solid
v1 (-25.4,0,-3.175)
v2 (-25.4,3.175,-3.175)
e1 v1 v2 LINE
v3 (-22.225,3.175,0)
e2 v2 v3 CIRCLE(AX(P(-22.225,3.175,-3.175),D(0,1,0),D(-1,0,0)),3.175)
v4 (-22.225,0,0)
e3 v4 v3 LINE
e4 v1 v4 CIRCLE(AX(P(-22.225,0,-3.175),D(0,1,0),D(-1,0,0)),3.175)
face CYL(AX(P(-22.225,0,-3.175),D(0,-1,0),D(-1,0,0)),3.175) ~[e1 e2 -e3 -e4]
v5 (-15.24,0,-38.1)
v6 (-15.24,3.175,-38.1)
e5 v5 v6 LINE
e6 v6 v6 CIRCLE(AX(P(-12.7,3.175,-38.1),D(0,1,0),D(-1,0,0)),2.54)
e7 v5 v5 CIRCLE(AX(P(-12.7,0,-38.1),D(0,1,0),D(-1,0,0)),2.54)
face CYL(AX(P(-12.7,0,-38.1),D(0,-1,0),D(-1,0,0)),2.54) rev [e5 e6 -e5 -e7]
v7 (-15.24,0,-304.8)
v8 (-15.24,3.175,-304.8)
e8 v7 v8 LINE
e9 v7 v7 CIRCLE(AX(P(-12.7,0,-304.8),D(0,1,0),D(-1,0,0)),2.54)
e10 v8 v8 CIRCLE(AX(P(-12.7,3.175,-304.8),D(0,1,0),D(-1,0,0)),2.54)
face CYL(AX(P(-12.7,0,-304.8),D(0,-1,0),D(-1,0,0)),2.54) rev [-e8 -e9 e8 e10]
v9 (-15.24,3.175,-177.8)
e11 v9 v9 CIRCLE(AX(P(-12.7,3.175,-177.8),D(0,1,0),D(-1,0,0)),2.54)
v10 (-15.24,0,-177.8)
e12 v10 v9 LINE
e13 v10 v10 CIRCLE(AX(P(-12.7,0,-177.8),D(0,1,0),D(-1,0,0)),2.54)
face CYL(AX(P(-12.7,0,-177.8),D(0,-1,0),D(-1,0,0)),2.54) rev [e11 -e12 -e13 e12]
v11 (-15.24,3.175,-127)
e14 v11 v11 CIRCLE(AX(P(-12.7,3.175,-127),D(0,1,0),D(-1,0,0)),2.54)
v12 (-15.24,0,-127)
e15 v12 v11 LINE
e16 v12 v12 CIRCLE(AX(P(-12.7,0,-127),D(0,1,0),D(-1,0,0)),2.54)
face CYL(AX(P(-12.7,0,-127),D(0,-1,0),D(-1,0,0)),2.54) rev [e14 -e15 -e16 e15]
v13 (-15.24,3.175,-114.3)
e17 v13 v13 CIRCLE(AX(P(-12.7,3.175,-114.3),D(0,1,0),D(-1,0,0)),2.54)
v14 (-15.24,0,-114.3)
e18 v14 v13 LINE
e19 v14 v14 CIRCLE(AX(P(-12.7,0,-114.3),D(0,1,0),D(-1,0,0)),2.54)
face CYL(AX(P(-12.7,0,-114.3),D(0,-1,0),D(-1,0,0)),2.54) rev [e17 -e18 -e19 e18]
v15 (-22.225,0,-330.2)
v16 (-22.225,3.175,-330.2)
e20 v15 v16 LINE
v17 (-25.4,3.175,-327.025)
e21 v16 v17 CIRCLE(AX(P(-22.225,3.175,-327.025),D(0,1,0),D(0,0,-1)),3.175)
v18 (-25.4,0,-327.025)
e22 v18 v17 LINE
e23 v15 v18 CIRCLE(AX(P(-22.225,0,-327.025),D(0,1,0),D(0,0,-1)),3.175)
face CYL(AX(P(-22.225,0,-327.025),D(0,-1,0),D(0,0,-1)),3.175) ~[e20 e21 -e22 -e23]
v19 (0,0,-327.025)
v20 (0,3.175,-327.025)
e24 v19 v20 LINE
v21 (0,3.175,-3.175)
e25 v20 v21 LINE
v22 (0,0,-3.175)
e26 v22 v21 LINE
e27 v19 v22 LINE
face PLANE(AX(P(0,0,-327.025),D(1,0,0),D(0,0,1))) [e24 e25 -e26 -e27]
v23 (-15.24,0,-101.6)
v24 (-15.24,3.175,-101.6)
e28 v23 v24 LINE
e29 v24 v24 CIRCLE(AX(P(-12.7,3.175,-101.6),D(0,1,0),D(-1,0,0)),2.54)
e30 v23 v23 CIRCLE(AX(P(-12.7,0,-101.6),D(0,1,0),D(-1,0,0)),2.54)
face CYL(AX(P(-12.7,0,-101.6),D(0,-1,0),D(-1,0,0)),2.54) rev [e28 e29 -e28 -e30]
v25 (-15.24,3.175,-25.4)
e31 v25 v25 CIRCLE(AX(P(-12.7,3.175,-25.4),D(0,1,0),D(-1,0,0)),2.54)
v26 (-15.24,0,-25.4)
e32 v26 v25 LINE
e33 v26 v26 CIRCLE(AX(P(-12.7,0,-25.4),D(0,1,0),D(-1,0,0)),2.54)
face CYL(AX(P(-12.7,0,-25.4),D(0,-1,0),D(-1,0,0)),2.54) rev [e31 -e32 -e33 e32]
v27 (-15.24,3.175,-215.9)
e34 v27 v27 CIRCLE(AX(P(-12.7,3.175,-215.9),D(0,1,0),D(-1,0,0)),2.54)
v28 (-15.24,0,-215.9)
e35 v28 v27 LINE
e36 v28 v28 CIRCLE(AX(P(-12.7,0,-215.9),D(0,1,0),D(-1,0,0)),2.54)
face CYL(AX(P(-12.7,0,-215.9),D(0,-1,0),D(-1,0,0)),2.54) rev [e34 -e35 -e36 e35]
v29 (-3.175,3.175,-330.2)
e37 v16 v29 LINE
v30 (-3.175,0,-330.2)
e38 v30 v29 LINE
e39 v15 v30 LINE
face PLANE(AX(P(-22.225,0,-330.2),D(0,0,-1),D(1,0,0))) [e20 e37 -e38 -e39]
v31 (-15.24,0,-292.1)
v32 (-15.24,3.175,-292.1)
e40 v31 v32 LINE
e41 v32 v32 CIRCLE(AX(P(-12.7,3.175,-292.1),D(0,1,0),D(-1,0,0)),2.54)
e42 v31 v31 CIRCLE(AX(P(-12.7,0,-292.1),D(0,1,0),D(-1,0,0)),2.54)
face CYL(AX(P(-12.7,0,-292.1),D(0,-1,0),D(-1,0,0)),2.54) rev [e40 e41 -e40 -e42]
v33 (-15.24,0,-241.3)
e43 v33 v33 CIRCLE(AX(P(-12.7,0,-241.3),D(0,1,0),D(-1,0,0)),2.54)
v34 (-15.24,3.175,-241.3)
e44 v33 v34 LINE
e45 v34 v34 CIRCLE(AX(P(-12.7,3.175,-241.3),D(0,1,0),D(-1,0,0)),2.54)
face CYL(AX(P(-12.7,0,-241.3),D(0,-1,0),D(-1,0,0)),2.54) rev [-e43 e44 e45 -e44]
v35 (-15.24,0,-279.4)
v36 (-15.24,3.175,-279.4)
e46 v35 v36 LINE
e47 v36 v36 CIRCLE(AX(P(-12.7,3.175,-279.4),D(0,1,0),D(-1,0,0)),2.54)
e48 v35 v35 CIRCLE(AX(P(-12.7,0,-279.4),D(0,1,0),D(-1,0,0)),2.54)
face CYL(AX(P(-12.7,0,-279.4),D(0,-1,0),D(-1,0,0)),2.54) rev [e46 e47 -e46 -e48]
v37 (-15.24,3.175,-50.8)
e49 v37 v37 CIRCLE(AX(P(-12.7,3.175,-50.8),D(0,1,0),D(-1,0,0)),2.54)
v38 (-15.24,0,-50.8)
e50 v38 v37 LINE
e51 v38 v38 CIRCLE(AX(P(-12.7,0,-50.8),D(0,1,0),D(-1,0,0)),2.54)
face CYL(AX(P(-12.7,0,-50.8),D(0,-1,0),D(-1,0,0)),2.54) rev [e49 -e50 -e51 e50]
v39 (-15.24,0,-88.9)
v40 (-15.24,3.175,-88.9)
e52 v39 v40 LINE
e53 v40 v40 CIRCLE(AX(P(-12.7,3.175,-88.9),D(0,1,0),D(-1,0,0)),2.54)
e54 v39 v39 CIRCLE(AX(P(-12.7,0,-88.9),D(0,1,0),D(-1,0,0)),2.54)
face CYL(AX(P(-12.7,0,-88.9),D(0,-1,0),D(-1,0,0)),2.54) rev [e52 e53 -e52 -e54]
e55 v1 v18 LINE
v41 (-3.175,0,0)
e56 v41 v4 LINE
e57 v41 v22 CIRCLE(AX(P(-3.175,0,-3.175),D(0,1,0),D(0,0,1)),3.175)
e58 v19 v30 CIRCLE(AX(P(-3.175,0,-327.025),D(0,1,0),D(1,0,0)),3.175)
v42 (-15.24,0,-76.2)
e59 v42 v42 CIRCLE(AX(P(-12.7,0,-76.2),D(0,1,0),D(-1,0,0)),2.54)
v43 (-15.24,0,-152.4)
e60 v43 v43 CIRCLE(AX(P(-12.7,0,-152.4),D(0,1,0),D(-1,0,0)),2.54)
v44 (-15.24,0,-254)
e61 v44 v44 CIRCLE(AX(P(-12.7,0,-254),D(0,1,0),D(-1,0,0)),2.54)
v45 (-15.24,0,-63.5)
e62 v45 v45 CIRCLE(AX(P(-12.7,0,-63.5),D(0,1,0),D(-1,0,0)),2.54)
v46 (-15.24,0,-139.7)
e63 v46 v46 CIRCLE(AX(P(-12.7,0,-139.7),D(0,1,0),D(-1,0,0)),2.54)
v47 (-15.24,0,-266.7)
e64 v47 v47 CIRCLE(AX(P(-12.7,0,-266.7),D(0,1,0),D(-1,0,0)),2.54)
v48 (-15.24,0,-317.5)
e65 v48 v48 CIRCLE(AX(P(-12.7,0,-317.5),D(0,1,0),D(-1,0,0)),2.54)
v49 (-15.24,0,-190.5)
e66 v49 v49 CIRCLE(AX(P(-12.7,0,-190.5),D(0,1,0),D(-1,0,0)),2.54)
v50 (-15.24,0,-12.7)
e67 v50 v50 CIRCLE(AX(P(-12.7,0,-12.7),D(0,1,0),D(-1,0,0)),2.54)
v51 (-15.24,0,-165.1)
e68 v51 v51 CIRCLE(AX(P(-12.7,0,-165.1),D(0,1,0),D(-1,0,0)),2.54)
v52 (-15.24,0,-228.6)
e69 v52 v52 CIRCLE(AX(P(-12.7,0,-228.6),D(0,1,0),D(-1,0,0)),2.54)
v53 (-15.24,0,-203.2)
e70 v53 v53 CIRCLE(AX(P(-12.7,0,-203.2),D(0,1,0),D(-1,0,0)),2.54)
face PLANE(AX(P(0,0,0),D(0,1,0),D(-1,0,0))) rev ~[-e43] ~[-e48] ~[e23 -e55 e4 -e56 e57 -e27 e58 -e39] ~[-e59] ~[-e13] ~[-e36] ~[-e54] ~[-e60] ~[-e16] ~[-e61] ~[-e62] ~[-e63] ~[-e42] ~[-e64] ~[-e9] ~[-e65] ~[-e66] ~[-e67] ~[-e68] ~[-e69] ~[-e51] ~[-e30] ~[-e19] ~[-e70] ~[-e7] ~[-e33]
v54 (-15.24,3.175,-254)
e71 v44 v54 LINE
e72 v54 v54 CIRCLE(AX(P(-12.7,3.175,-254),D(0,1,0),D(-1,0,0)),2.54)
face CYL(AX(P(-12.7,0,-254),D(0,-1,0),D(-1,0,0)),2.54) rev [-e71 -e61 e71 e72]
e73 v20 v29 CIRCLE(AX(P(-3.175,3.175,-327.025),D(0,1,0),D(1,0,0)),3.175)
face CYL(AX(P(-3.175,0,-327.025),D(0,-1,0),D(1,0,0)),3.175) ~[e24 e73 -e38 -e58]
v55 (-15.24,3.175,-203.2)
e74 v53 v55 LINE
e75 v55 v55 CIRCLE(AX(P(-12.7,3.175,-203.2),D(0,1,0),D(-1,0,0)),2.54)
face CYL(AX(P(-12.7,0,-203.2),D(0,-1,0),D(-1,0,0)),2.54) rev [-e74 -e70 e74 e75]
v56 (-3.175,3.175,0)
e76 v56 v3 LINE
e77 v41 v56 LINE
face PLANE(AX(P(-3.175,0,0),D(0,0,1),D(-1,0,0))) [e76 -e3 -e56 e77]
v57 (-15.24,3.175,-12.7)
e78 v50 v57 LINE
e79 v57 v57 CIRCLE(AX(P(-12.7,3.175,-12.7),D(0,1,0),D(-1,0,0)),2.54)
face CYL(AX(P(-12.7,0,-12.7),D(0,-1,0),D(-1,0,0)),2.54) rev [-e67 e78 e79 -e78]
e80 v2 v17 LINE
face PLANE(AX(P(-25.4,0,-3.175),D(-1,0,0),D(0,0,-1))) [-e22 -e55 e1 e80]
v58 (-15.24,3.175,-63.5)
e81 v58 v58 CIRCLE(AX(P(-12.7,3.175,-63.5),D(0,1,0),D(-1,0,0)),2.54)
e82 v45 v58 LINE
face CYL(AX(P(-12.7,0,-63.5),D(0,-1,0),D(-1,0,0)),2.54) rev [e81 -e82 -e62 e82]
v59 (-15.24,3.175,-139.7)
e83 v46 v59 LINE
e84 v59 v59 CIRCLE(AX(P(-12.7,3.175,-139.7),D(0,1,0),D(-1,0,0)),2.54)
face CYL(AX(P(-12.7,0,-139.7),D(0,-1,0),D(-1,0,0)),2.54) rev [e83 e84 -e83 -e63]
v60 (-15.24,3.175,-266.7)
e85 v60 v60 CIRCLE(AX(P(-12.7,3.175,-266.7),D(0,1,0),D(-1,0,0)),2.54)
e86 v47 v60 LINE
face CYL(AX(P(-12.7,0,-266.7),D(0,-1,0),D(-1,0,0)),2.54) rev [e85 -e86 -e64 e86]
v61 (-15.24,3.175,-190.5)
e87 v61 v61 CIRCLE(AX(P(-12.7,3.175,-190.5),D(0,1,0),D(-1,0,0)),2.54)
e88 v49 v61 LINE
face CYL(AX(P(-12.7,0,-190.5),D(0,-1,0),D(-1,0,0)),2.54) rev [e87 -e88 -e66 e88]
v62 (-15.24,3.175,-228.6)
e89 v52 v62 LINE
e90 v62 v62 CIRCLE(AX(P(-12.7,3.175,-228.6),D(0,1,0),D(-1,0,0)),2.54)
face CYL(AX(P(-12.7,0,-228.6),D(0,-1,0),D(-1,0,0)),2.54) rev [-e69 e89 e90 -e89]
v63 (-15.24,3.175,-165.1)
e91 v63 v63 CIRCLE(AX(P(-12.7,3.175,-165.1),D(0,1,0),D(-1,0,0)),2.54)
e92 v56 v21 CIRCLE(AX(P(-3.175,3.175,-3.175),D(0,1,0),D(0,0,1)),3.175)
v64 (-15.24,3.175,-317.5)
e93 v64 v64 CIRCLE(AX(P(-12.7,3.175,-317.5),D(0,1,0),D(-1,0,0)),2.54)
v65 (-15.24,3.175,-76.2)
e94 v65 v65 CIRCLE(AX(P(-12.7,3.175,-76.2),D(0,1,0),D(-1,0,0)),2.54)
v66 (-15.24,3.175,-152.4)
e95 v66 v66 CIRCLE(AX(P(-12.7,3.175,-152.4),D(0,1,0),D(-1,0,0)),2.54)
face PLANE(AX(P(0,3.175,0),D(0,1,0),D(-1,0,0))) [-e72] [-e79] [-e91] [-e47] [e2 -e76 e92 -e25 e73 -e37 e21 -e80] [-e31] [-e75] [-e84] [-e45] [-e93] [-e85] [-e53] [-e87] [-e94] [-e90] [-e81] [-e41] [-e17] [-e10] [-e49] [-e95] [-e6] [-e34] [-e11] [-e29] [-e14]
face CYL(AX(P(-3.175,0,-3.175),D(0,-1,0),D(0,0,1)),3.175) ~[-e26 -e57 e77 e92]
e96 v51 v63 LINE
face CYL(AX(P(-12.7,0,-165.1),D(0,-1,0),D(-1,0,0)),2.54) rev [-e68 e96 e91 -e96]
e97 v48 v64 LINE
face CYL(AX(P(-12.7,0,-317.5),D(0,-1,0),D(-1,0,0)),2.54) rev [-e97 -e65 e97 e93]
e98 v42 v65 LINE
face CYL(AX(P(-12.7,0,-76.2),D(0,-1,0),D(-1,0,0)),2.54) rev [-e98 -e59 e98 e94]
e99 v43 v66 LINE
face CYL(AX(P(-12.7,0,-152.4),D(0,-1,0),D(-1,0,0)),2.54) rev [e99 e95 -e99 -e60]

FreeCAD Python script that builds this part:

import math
import FreeCAD as App
import Part
import Sketcher
Q = App.Units.Quantity

doc = App.newDocument("Part")
body = doc.addObject("PartDesign::Body", "Body")

# Sketch on XZ plane
sketch1 = body.newObject("Sketcher::SketchObject", "Sketch")
sketch1.AttachmentSupport = (doc.getObject("XZ_Plane"), [""])
sketch1.MapMode = "FlatFace"
sketch1.addGeometry([
    Part.LineSegment(App.Vector(-22.2, 0, 0), App.Vector(-3.2, 0, 0)),  # 0
    Part.ArcOfCircle(Part.Circle(App.Vector(-3.2, -3.2, 0), App.Vector(0, 0, 1), 3.2), math.radians(0), math.radians(90)),  # 1
    Part.LineSegment(App.Vector(0, -3.2, 0), App.Vector(0, -327, 0)),  # 2
    Part.ArcOfCircle(Part.Circle(App.Vector(-3.2, -327, 0), App.Vector(0, 0, 1), 3.2), math.radians(-90), math.radians(0)),  # 3
    Part.LineSegment(App.Vector(-3.2, -330.2, 0), App.Vector(-22.2, -330.2, 0)),  # 4
    Part.ArcOfCircle(Part.Circle(App.Vector(-22.2, -327, 0), App.Vector(0, 0, 1), 3.2), math.radians(180), math.radians(270)),  # 5
    Part.LineSegment(App.Vector(-25.4, -327, 0), App.Vector(-25.4, -3.2, 0)),  # 6
    Part.ArcOfCircle(Part.Circle(App.Vector(-22.2, -3.2, 0), App.Vector(0, 0, 1), 3.2), math.radians(90), math.radians(180)),  # 7
    Part.Circle(App.Vector(-12.7, -317.5, 0), App.Vector(0, 0, 1), 2.5),  # 8
    Part.Circle(App.Vector(-12.7, -304.8, 0), App.Vector(0, 0, 1), 2.5),  # 9
    Part.Circle(App.Vector(-12.7, -292.1, 0), App.Vector(0, 0, 1), 2.5),  # 10
    Part.Circle(App.Vector(-12.7, -279.4, 0), App.Vector(0, 0, 1), 2.5),  # 11
    Part.Circle(App.Vector(-12.7, -266.7, 0), App.Vector(0, 0, 1), 2.5),  # 12
    Part.Circle(App.Vector(-12.7, -254, 0), App.Vector(0, 0, 1), 2.5),  # 13
    Part.Circle(App.Vector(-12.7, -241.3, 0), App.Vector(0, 0, 1), 2.5),  # 14
    Part.Circle(App.Vector(-12.7, -228.6, 0), App.Vector(0, 0, 1), 2.5),  # 15
    Part.Circle(App.Vector(-12.7, -215.9, 0), App.Vector(0, 0, 1), 2.5),  # 16
    Part.Circle(App.Vector(-12.7, -203.2, 0), App.Vector(0, 0, 1), 2.5),  # 17
    Part.Circle(App.Vector(-12.7, -190.5, 0), App.Vector(0, 0, 1), 2.5),  # 18
    Part.Circle(App.Vector(-12.7, -177.8, 0), App.Vector(0, 0, 1), 2.5),  # 19
    Part.Circle(App.Vector(-12.7, -165.1, 0), App.Vector(0, 0, 1), 2.5),  # 20
    Part.Circle(App.Vector(-12.7, -152.4, 0), App.Vector(0, 0, 1), 2.5),  # 21
    Part.Circle(App.Vector(-12.7, -139.7, 0), App.Vector(0, 0, 1), 2.5),  # 22
    Part.Circle(App.Vector(-12.7, -127, 0), App.Vector(0, 0, 1), 2.5),  # 23
    Part.Circle(App.Vector(-12.7, -114.3, 0), App.Vector(0, 0, 1), 2.5),  # 24
    Part.Circle(App.Vector(-12.7, -101.6, 0), App.Vector(0, 0, 1), 2.5),  # 25
    Part.Circle(App.Vector(-12.7, -88.9, 0), App.Vector(0, 0, 1), 2.5),  # 26
    Part.Circle(App.Vector(-12.7, -76.2, 0), App.Vector(0, 0, 1), 2.5),  # 27
    Part.Circle(App.Vector(-12.7, -63.5, 0), App.Vector(0, 0, 1), 2.5),  # 28
    Part.Circle(App.Vector(-12.7, -50.8, 0), App.Vector(0, 0, 1), 2.5),  # 29
    Part.Circle(App.Vector(-12.7, -38.1, 0), App.Vector(0, 0, 1), 2.5),  # 30
    Part.Circle(App.Vector(-12.7, -25.4, 0), App.Vector(0, 0, 1), 2.5),  # 31
    Part.Circle(App.Vector(-12.7, -12.7, 0), App.Vector(0, 0, 1), 2.5),  # 32
], False)
sketch1.addConstraint([
    Sketcher.Constraint("Tangent", 0, 2, 1, 2),
    Sketcher.Constraint("Tangent", 1, 1, 2, 1),
    Sketcher.Constraint("Tangent", 2, 2, 3, 2),
    Sketcher.Constraint("Tangent", 3, 1, 4, 1),
    Sketcher.Constraint("Tangent", 4, 2, 5, 2),
    Sketcher.Constraint("Tangent", 5, 1, 6, 1),
    Sketcher.Constraint("Tangent", 6, 2, 7, 2),
    Sketcher.Constraint("Tangent", 7, 1, 0, 1),
    Sketcher.Constraint("Horizontal", 0),
    Sketcher.Constraint("Vertical", 2),
    Sketcher.Constraint("Horizontal", 4),
    Sketcher.Constraint("Vertical", 6),
    Sketcher.Constraint("Equal", 1, 3),
    Sketcher.Constraint("Equal", 3, 5),
    Sketcher.Constraint("Equal", 5, 7),
    Sketcher.Constraint("Equal", 8, 9),
    Sketcher.Constraint("Equal", 9, 10),
    Sketcher.Constraint("Equal", 10, 11),
    Sketcher.Constraint("Equal", 11, 12),
    Sketcher.Constraint("Equal", 12, 13),
    Sketcher.Constraint("Equal", 13, 14),
    Sketcher.Constraint("Equal", 14, 15),
    Sketcher.Constraint("Equal", 15, 16),
    Sketcher.Constraint("Equal", 16, 17),
    Sketcher.Constraint("Equal", 17, 18),
    Sketcher.Constraint("Equal", 18, 19),
    Sketcher.Constraint("Equal", 19, 20),
    Sketcher.Constraint("Equal", 20, 21),
    Sketcher.Constraint("Equal", 21, 22),
    Sketcher.Constraint("Equal", 22, 23),
    Sketcher.Constraint("Equal", 23, 24),
    Sketcher.Constraint("Equal", 24, 25),
    Sketcher.Constraint("Equal", 25, 26),
    Sketcher.Constraint("Equal", 26, 27),
    Sketcher.Constraint("Equal", 27, 28),
    Sketcher.Constraint("Equal", 28, 29),
    Sketcher.Constraint("Equal", 29, 30),
    Sketcher.Constraint("Equal", 30, 31),
    Sketcher.Constraint("Equal", 31, 32),
    Sketcher.Constraint("PointOnObject", 0, 2, -1),
    Sketcher.Constraint("PointOnObject", 1, 1, -2),
    Sketcher.Constraint("Vertical", 8, 3, 9, 3),
    Sketcher.Constraint("Vertical", 9, 3, 10, 3),
    Sketcher.Constraint("Vertical", 10, 3, 11, 3),
    Sketcher.Constraint("Vertical", 11, 3, 12, 3),
    Sketcher.Constraint("Vertical", 12, 3, 13, 3),
    Sketcher.Constraint("Vertical", 13, 3, 14, 3),
    Sketcher.Constraint("Vertical", 14, 3, 15, 3),
    Sketcher.Constraint("Vertical", 15, 3, 16, 3),
    Sketcher.Constraint("Vertical", 16, 3, 17, 3),
    Sketcher.Constraint("Vertical", 17, 3, 18, 3),
    Sketcher.Constraint("Vertical", 18, 3, 19, 3),
    Sketcher.Constraint("Vertical", 19, 3, 20, 3),
    Sketcher.Constraint("Vertical", 20, 3, 21, 3),
    Sketcher.Constraint("Vertical", 21, 3, 22, 3),
    Sketcher.Constraint("Vertical", 22, 3, 23, 3),
    Sketcher.Constraint("Vertical", 23, 3, 24, 3),
    Sketcher.Constraint("Vertical", 24, 3, 25, 3),
    Sketcher.Constraint("Vertical", 25, 3, 26, 3),
    Sketcher.Constraint("Vertical", 26, 3, 27, 3),
    Sketcher.Constraint("Vertical", 27, 3, 28, 3),
    Sketcher.Constraint("Vertical", 28, 3, 29, 3),
    Sketcher.Constraint("Vertical", 29, 3, 30, 3),
    Sketcher.Constraint("Vertical", 30, 3, 31, 3),
    Sketcher.Constraint("Vertical", 31, 3, 32, 3),
    Sketcher.Constraint("Diameter", 8, Q("0.2 in")),
    Sketcher.Constraint("DistanceY", 31, 3, -1, 1, Q("1 in")),
    Sketcher.Constraint("DistanceY", 3, 1, -1, 1, Q("13 in")),
    Sketcher.Constraint("DistanceX", 5, 1, -1, 1, Q("1 in")),
    Sketcher.Constraint("Radius", 1, Q("0.125 in")),
    Sketcher.Constraint("DistanceY", 8, 3, 10, 3, Q("1 in")),
    Sketcher.Constraint("DistanceY", 9, 3, 11, 3, Q("1 in")),
    Sketcher.Constraint("DistanceY", 10, 3, 12, 3, Q("1 in")),
    Sketcher.Constraint("DistanceY", 11, 3, 13, 3, Q("1 in")),
    Sketcher.Constraint("DistanceY", 12, 3, 14, 3, Q("1 in")),
    Sketcher.Constraint("DistanceY", 13, 3, 15, 3, Q("1 in")),
    Sketcher.Constraint("DistanceY", 14, 3, 16, 3, Q("1 in")),
    Sketcher.Constraint("DistanceY", 15, 3, 17, 3, Q("1 in")),
    Sketcher.Constraint("DistanceY", 16, 3, 18, 3, Q("1 in")),
    Sketcher.Constraint("DistanceY", 17, 3, 19, 3, Q("1 in")),
    Sketcher.Constraint("DistanceY", 18, 3, 20, 3, Q("1 in")),
    Sketcher.Constraint("DistanceY", 19, 3, 21, 3, Q("1 in")),
    Sketcher.Constraint("DistanceY", 20, 3, 22, 3, Q("1 in")),
    Sketcher.Constraint("DistanceY", 21, 3, 23, 3, Q("1 in")),
    Sketcher.Constraint("DistanceY", 22, 3, 24, 3, Q("1 in")),
    Sketcher.Constraint("DistanceY", 23, 3, 25, 3, Q("1 in")),
    Sketcher.Constraint("DistanceY", 24, 3, 26, 3, Q("1 in")),
    Sketcher.Constraint("DistanceY", 25, 3, 27, 3, Q("1 in")),
    Sketcher.Constraint("DistanceY", 26, 3, 28, 3, Q("1 in")),
    Sketcher.Constraint("DistanceY", 27, 3, 29, 3, Q("1 in")),
    Sketcher.Constraint("DistanceY", 28, 3, 30, 3, Q("1 in")),
    Sketcher.Constraint("DistanceY", 29, 3, 31, 3, Q("1 in")),
    Sketcher.Constraint("DistanceY", 30, 3, 32, 3, Q("1 in")),
    Sketcher.Constraint("DistanceX", 8, 3, -1, 1, Q("0.5 in")),
    Sketcher.Constraint("DistanceY", 32, 3, -1, 1, Q("0.5 in")),
])
pad1 = body.newObject("PartDesign::Pad", "Pad")
pad1.Profile = sketch1
pad1.Length = Q("0.125 in")
pad1.Reversed = True

doc.recompute()
